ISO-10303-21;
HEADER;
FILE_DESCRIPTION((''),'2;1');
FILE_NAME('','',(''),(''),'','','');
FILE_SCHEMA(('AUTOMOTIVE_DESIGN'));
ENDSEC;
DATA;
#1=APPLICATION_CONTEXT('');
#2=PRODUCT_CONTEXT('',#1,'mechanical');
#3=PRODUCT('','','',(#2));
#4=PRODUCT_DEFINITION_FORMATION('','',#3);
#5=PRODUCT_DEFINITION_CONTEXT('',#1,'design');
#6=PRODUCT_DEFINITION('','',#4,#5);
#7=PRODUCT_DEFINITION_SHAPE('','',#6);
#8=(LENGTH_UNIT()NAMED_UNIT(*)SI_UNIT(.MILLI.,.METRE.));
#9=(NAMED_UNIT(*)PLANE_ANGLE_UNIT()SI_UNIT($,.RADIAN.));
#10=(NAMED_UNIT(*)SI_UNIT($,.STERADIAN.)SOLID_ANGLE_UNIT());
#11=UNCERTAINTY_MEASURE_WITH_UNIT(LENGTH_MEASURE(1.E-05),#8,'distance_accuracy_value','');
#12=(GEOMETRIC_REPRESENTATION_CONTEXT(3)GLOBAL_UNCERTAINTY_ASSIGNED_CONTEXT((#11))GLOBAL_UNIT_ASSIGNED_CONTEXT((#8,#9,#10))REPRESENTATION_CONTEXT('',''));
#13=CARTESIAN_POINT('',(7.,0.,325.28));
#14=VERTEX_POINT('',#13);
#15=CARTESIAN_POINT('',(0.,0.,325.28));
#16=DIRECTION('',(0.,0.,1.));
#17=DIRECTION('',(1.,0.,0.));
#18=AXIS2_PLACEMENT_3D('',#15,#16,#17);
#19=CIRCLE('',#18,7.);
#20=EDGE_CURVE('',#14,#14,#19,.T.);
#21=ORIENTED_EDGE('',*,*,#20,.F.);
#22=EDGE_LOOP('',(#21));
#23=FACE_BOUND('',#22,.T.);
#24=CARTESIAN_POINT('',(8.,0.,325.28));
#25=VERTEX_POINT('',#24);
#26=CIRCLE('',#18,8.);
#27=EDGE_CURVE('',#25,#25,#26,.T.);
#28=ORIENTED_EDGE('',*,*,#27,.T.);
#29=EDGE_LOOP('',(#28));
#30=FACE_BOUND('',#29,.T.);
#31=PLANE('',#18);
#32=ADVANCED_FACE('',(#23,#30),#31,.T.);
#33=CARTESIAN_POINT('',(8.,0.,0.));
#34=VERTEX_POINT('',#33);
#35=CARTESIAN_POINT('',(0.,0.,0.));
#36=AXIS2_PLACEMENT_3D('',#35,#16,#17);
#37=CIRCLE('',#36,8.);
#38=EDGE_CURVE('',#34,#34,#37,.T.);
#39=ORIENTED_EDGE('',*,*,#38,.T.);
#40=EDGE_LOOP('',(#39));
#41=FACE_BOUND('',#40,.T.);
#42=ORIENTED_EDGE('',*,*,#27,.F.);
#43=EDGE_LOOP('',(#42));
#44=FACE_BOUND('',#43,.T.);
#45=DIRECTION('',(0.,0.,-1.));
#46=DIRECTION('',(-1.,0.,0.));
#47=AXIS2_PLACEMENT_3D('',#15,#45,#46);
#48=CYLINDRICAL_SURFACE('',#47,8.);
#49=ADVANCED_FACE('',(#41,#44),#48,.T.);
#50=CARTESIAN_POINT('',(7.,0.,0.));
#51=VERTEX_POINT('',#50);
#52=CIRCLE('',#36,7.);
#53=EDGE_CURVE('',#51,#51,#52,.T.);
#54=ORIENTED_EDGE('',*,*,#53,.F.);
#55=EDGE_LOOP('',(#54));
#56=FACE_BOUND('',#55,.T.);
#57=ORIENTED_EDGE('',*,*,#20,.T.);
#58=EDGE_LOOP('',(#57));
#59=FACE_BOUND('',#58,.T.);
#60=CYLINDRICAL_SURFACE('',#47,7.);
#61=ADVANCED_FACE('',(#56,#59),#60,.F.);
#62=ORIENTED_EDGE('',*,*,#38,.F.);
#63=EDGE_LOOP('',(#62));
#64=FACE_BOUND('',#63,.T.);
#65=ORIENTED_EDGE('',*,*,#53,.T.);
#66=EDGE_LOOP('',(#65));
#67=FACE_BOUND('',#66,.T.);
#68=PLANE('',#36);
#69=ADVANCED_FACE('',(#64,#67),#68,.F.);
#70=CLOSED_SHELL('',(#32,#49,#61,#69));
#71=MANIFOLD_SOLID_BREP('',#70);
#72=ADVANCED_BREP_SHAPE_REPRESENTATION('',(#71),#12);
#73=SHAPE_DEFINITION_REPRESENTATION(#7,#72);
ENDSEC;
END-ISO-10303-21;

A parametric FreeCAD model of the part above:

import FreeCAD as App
import Part
import Sketcher
Q = App.Units.Quantity

doc = App.newDocument("Part")
body = doc.addObject("PartDesign::Body", "Body")

# Sketch on XY plane
sketch1 = body.newObject("Sketcher::SketchObject", "Sketch")
sketch1.AttachmentSupport = (doc.getObject("XY_Plane"), [""])
sketch1.MapMode = "FlatFace"
sketch1.addGeometry(Part.Circle(App.Vector(0, 0, 0), App.Vector(0, 0, 1), 8), False)
sketch1.addGeometry(Part.Circle(App.Vector(0, 0, 0), App.Vector(0, 0, 1), 7), False)
sketch1.addConstraint(Sketcher.Constraint("Coincident", 0, 3, -1, 1))
sketch1.addConstraint(Sketcher.Constraint("Coincident", 1, 3, -1, 1))
sketch1.addConstraint(Sketcher.Constraint("Diameter", 0, Q("16 mm")))
sketch1.addConstraint(Sketcher.Constraint("Diameter", 1, Q("14 mm")))
pad1 = body.newObject("PartDesign::Pad", "Pad")
pad1.Profile = sketch1
pad1.Length = 325.28

doc.recompute()
